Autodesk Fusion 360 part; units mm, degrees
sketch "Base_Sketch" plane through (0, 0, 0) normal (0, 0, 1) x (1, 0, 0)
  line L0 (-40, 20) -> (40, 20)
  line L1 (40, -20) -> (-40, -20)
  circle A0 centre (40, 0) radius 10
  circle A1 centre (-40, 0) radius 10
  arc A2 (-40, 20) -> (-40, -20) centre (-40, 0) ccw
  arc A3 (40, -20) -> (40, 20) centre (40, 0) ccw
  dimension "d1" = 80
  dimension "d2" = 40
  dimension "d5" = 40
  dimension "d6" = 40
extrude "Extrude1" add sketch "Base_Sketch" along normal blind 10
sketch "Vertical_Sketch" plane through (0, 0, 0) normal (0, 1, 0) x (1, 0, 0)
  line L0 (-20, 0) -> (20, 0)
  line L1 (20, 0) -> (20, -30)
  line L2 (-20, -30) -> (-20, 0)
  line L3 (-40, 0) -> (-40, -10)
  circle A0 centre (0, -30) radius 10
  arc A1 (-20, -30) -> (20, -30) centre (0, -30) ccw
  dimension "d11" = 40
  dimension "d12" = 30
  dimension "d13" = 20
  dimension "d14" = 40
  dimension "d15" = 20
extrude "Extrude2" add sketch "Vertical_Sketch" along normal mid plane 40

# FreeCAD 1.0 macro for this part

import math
import FreeCAD as App
import Part
import Sketcher

doc = App.newDocument("Part")
body = doc.addObject("PartDesign::Body", "Body")

# Sketch on XY plane
sketch1 = doc.addObject("Sketcher::SketchObject", "Sketch")
body.addObject(sketch1)
sketch1.AttachmentSupport = (doc.XY_Plane, [""])
sketch1.MapMode = "FlatFace"
sketch1.addGeometry(Part.LineSegment(App.Vector(40, 20, 0), App.Vector(-40, 20, 0)), False)
sketch1.addGeometry(Part.ArcOfCircle(Part.Circle(App.Vector(-40, 0, 0), App.Vector(0, 0, 1), 20), math.radians(90), math.radians(270)), False)
sketch1.addGeometry(Part.LineSegment(App.Vector(-40, -20, 0), App.Vector(40, -20, 0)), False)
sketch1.addGeometry(Part.ArcOfCircle(Part.Circle(App.Vector(40, 0, 0), App.Vector(0, 0, 1), 20), math.radians(-90), math.radians(90)), False)
sketch1.addGeometry(Part.Circle(App.Vector(-40, 0, 0), App.Vector(0, 0, 1), 10), False)
sketch1.addGeometry(Part.Circle(App.Vector(40, 0, 0), App.Vector(0, 0, 1), 10), False)
sketch1.addConstraint(Sketcher.Constraint("Tangent", 0, 2, 1, 1))
sketch1.addConstraint(Sketcher.Constraint("Tangent", 1, 2, 2, 1))
sketch1.addConstraint(Sketcher.Constraint("Tangent", 2, 2, 3, 1))
sketch1.addConstraint(Sketcher.Constraint("Tangent", 3, 2, 0, 1))
sketch1.addConstraint(Sketcher.Constraint("Horizontal", 0))
sketch1.addConstraint(Sketcher.Constraint("Horizontal", 2))
sketch1.addConstraint(Sketcher.Constraint("Coincident", 4, 3, 1, 3))
sketch1.addConstraint(Sketcher.Constraint("Coincident", 5, 3, 3, 3))
sketch1.addConstraint(Sketcher.Constraint("Equal", 4, 5))
sketch1.addConstraint(Sketcher.Constraint("Symmetric", 1, 3, 3, 3, -1, 1))
sketch1.addConstraint(Sketcher.Constraint("Radius", 1, 20.0))
sketch1.addConstraint(Sketcher.Constraint("DistanceX", 0, 2, 0, 1, 80.0))
sketch1.addConstraint(Sketcher.Constraint("Diameter", 4, 20.0))
pad1 = doc.addObject("PartDesign::Pad", "Pad")
body.addObject(pad1)
pad1.Profile = sketch1
pad1.Length = 10

# Sketch on XZ plane
sketch2 = doc.addObject("Sketcher::SketchObject", "Sketch001")
body.addObject(sketch2)
sketch2.AttachmentSupport = (doc.XZ_Plane, [""])
sketch2.MapMode = "FlatFace"
sketch2.addGeometry(Part.LineSegment(App.Vector(20, 0, 0), App.Vector(-20, 0, 0)), False)
sketch2.addGeometry(Part.LineSegment(App.Vector(-20, 0, 0), App.Vector(-20, 30, 0)), False)
sketch2.addGeometry(Part.ArcOfCircle(Part.Circle(App.Vector(0, 30, 0), App.Vector(0, 0, 1), 20), math.radians(0), math.radians(180)), False)
sketch2.addGeometry(Part.LineSegment(App.Vector(20, 30, 0), App.Vector(20, 0, 0)), False)
sketch2.addGeometry(Part.Circle(App.Vector(0, 30, 0), App.Vector(0, 0, 1), 10), False)
sketch2.addConstraint(Sketcher.Constraint("Coincident", 0, 2, 1, 1))
sketch2.addConstraint(Sketcher.Constraint("Tangent", 1, 2, 2, 2))
sketch2.addConstraint(Sketcher.Constraint("Tangent", 2, 1, 3, 1))
sketch2.addConstraint(Sketcher.Constraint("Coincident", 3, 2, 0, 1))
sketch2.addConstraint(Sketcher.Constraint("Horizontal", 0))
sketch2.addConstraint(Sketcher.Constraint("Vertical", 1))
sketch2.addConstraint(Sketcher.Constraint("Vertical", 3))
sketch2.addConstraint(Sketcher.Constraint("Coincident", 4, 3, 2, 3))
sketch2.addConstraint(Sketcher.Constraint("Symmetric", 0, 2, 3, 2, -1, 1))
sketch2.addConstraint(Sketcher.Constraint("Diameter", 4, 20.0))
sketch2.addConstraint(Sketcher.Constraint("Radius", 2, 20.0))
sketch2.addConstraint(Sketcher.Constraint("DistanceY", 1, 1, 1, 2, 30.0))
pad2 = doc.addObject("PartDesign::Pad", "Pad001")
body.addObject(pad2)
pad2.Profile = sketch2
pad2.Length = 40
pad2.Midplane = True

doc.recompute()
